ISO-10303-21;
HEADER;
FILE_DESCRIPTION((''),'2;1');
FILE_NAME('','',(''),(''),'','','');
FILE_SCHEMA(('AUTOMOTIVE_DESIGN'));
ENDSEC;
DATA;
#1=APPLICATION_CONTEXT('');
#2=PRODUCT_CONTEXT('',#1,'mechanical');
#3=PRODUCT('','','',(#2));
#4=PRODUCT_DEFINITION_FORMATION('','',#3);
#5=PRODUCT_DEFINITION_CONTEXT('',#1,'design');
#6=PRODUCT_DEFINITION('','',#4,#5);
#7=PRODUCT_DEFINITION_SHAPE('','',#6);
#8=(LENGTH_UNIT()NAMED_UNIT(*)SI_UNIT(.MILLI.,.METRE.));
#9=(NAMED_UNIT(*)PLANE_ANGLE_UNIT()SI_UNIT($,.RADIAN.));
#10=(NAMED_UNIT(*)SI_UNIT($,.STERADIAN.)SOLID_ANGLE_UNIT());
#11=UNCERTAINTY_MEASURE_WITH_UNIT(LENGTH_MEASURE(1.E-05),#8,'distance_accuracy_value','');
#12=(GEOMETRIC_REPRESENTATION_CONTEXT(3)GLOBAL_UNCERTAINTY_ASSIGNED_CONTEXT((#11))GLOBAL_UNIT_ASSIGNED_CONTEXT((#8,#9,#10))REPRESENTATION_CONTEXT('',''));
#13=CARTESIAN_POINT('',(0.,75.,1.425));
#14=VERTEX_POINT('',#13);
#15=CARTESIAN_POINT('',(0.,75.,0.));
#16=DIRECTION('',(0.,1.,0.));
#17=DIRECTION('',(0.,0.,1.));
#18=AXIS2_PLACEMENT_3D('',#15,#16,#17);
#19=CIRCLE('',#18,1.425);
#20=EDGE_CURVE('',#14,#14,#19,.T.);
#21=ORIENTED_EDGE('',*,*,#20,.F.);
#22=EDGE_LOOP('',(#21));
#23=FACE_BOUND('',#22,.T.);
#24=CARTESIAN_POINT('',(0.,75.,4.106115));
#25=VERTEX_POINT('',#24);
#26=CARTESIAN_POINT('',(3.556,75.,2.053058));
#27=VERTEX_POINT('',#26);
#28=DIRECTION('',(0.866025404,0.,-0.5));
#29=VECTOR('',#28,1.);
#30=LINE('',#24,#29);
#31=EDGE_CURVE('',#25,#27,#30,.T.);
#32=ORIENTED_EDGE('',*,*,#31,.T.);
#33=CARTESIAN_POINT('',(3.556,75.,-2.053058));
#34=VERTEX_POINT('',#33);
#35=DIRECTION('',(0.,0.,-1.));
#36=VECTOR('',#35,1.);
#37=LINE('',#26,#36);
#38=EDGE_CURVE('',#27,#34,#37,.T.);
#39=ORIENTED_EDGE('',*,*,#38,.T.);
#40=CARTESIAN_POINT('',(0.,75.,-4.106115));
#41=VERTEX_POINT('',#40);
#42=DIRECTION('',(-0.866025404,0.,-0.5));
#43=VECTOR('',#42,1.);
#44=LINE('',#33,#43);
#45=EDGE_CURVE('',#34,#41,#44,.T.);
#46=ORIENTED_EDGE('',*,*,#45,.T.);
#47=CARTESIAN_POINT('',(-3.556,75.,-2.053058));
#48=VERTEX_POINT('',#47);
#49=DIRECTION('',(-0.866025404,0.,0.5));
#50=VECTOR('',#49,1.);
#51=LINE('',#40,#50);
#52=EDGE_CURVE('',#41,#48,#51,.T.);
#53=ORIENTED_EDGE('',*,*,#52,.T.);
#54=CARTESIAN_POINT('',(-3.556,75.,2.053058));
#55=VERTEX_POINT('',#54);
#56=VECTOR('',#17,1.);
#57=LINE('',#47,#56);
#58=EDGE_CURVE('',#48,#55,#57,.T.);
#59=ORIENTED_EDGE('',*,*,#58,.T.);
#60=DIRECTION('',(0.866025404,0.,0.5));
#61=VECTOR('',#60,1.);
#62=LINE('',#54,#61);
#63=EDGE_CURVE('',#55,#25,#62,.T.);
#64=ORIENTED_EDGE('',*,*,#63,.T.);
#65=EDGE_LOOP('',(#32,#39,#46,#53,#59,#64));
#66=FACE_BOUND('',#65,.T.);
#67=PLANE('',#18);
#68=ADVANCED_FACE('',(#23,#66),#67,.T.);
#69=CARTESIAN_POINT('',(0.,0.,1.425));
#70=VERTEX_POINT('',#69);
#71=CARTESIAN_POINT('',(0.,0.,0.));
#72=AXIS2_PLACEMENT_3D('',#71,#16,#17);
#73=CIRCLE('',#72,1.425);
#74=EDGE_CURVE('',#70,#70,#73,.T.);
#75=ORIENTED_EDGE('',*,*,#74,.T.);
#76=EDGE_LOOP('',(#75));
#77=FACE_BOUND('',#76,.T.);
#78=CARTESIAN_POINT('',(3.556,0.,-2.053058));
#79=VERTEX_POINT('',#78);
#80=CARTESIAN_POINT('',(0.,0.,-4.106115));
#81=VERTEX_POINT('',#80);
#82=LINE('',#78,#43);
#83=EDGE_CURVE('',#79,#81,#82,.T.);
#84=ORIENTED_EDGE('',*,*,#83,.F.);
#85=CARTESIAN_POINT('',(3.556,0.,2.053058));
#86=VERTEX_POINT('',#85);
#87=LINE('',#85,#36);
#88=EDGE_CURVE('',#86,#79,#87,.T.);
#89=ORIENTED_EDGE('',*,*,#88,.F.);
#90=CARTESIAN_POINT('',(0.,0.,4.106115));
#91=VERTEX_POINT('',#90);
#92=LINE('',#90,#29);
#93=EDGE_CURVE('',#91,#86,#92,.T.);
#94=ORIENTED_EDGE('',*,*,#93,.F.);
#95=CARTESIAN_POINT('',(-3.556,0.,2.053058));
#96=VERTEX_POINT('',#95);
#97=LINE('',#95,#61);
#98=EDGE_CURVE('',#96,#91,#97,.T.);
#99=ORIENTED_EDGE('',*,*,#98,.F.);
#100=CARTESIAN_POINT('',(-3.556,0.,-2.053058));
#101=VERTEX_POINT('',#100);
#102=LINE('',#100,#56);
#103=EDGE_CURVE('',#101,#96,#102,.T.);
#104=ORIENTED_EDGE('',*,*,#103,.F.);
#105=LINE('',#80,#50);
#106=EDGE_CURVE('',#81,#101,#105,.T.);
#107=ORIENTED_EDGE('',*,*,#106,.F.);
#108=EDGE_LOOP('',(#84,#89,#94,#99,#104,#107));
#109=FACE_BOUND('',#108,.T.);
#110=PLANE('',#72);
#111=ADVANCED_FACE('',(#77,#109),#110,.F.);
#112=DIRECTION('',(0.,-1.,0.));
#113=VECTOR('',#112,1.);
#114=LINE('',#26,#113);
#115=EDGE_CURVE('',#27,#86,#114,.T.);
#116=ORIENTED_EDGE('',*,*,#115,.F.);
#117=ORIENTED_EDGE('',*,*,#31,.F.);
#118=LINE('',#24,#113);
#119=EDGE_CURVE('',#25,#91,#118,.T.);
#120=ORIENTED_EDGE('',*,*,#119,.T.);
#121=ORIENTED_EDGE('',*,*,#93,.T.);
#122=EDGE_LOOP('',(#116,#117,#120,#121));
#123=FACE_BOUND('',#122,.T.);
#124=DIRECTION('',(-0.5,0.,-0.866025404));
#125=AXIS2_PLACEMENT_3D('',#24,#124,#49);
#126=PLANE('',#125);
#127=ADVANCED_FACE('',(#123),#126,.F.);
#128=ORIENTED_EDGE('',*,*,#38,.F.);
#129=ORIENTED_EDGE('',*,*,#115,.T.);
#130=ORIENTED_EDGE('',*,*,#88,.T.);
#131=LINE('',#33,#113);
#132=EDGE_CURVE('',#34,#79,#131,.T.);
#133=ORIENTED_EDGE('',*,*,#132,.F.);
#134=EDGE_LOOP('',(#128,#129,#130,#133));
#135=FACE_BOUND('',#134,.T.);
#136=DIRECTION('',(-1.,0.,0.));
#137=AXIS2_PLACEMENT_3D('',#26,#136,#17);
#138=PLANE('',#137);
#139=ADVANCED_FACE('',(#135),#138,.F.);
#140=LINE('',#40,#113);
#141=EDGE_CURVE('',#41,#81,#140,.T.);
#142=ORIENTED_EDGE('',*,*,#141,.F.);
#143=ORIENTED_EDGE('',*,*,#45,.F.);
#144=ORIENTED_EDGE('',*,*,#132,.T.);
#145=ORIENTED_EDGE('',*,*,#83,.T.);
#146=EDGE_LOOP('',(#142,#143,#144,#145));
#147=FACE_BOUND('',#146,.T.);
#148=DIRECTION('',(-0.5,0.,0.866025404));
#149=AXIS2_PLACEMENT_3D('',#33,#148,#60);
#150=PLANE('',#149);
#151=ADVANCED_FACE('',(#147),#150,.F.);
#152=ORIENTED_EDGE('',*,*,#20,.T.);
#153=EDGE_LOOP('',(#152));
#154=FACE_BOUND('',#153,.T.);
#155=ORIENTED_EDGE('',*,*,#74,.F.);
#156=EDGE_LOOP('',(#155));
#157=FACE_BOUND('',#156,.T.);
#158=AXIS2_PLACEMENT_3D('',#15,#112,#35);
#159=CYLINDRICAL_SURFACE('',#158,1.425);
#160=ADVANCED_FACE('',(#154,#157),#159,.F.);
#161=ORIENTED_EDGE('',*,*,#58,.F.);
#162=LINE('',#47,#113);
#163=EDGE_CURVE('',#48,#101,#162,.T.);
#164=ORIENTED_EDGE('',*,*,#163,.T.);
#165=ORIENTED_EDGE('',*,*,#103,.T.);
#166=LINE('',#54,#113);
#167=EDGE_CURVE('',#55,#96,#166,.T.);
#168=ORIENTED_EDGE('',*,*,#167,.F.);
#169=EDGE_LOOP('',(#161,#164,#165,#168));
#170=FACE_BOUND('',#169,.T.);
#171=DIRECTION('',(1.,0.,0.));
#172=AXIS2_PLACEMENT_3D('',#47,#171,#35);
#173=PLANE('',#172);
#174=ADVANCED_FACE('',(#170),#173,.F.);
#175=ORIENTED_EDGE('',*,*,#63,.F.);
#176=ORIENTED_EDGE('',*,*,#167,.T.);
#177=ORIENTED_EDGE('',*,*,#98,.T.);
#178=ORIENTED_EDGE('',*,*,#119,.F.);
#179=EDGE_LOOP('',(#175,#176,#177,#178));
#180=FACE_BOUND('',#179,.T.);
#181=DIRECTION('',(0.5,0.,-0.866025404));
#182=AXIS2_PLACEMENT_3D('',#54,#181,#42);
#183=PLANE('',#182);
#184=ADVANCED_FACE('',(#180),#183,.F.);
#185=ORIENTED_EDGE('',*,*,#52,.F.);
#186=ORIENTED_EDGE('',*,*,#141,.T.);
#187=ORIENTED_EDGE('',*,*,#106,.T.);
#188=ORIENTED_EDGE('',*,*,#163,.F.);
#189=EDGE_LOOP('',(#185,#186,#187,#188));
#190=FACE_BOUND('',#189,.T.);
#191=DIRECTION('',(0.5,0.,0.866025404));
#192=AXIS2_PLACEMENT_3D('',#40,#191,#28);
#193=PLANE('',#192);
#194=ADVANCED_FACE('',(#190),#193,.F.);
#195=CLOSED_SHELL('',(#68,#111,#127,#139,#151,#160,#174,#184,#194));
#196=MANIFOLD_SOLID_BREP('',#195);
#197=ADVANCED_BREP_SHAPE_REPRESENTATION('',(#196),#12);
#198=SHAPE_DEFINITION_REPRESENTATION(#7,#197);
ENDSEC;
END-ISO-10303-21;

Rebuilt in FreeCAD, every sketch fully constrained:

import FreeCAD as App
import Part
import Sketcher
from FreeCAD import Vector
Q = App.Units.Quantity


def add_polygon(sketch, points):
    """Adds a closed chain of lines whose ends are joined by coincident constraints."""
    first, n = sketch.GeometryCount, len(points)
    for a, b in zip(points, points[1:] + points[:1]):
        sketch.addGeometry(Part.LineSegment(App.Vector(*a, 0), App.Vector(*b, 0)), False)
    for i in range(n):
        sketch.addConstraint(Sketcher.Constraint("Coincident", first + i, 2, first + (i + 1) % n, 1))

doc = App.newDocument("Part")
body = doc.addObject("PartDesign::Body", "Body")

sketch1 = body.newObject("Sketcher::SketchObject", "Sketch")
sketch1.AttachmentSupport = (doc.getObject("XZ_Plane"), [""])
sketch1.MapMode = "FlatFace"
add_polygon(sketch1, [(0, -4.1), (-3.6, -2.1), (-3.6, 2.1), (0, 4.1), (3.6, 2.1), (3.6, -2.1)])
sketch1.addGeometry(Part.Circle(Vector(0, 0, 0), Vector(0, 0, 1), 1.4), False)
sketch1.addConstraint(Sketcher.Constraint("Vertical", 1))
sketch1.addConstraint(Sketcher.Constraint("Vertical", 4))
sketch1.addConstraint(Sketcher.Constraint("Coincident", 6, 3, -1, 1))
sketch1.addConstraint(Sketcher.Constraint("Symmetric", 0, 2, 3, 2, -1, 1))
sketch1.addConstraint(Sketcher.Constraint("Symmetric", 2, 2, 5, 2, -1, 1))
sketch1.addConstraint(Sketcher.Constraint("PointOnObject", 2, 2, -2))
sketch1.addConstraint(Sketcher.Constraint("Parallel", 2, 5))
sketch1.addConstraint(Sketcher.Constraint("Horizontal", 1, 2, 3, 2))
sketch1.addConstraint(Sketcher.Constraint("Diameter", 6, 2.85))
sketch1.addConstraint(Sketcher.Constraint("Angle", 0, Q("150 deg")))
sketch1.addConstraint(Sketcher.Constraint("DistanceX", 0, 2, -1, 1, 3.556))
sketch1.addConstraint(Sketcher.Constraint("DistanceY", 1, 1, 1, 2, 4.106115))
pad1 = body.newObject("PartDesign::Pad", "Pad")
pad1.Profile = sketch1
pad1.Length = 75
pad1.Reversed = True

doc.recompute()
